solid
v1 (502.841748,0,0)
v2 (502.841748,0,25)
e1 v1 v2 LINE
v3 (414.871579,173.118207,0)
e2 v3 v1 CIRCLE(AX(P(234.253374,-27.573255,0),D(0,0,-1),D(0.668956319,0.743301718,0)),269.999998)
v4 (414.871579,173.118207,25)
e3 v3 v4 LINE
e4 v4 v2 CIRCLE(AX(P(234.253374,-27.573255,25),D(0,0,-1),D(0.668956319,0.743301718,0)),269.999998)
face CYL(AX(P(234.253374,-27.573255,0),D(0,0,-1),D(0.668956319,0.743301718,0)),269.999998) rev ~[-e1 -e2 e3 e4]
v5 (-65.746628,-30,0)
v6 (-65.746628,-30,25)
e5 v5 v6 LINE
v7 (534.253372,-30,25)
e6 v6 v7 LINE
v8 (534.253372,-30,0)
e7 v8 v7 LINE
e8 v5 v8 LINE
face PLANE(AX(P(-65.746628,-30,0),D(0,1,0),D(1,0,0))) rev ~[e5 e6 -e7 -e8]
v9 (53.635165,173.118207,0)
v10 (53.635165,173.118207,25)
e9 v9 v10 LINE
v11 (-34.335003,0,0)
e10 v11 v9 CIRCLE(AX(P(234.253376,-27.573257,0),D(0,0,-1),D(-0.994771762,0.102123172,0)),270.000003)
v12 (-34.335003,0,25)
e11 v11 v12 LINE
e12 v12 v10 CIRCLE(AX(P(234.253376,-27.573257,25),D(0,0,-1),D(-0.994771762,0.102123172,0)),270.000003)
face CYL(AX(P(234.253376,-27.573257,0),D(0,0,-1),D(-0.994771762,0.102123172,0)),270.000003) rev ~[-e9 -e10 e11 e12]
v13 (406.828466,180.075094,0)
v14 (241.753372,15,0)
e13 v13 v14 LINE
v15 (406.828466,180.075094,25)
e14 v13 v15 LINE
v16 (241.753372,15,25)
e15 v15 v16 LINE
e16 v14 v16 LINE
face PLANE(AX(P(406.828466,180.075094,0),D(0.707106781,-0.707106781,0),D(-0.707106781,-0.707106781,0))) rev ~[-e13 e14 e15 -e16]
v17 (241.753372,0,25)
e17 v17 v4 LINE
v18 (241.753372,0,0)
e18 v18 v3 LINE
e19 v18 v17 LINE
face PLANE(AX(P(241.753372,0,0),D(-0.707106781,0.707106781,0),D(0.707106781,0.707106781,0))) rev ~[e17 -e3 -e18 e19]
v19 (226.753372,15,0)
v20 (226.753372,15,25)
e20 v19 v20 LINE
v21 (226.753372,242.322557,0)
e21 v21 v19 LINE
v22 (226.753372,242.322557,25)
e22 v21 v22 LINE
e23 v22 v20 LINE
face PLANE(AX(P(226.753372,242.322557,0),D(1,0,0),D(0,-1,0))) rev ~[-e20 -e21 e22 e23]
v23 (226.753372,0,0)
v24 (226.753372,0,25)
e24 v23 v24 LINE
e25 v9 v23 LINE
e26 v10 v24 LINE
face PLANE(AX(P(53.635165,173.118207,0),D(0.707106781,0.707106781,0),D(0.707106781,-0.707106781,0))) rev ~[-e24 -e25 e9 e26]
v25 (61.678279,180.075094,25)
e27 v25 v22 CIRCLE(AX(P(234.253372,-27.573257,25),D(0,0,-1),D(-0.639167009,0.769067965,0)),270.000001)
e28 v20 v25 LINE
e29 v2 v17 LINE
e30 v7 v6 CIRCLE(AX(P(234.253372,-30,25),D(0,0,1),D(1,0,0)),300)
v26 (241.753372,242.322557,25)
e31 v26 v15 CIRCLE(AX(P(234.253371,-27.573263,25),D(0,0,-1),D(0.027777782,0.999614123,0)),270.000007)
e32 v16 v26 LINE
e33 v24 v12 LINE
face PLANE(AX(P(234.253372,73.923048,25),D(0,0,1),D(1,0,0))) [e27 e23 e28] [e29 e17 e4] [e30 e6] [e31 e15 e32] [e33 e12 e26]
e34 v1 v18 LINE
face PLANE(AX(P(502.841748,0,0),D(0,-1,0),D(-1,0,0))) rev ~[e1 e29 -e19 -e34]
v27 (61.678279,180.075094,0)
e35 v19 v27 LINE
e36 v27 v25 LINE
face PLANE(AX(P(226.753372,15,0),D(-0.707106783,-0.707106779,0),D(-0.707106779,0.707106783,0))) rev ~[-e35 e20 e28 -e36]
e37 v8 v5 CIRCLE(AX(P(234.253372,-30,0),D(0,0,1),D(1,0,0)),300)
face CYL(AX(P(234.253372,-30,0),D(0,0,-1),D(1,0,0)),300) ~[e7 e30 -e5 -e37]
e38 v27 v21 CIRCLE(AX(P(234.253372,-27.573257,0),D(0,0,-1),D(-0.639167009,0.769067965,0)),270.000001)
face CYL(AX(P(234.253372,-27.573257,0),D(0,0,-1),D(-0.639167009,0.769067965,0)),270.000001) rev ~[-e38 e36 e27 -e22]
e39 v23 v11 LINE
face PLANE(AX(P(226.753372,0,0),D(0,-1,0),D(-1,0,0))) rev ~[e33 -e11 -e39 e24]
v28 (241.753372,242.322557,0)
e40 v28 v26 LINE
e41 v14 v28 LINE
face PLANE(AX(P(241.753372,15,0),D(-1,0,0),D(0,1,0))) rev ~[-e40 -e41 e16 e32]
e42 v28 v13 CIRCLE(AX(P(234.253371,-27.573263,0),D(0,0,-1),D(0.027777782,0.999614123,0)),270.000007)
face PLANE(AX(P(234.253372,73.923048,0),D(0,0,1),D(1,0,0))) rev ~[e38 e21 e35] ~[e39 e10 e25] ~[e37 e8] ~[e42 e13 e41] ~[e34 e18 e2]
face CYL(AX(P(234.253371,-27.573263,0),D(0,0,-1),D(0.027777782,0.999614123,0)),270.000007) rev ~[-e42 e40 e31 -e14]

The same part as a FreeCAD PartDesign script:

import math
import FreeCAD as App
import Part
import Sketcher
Q = App.Units.Quantity

doc = App.newDocument("Part")
body = doc.addObject("PartDesign::Body", "Body")

# Sketch on XY plane
sketch1 = doc.addObject("Sketcher::SketchObject", "Sketch")
body.addObject(sketch1)
sketch1.AttachmentSupport = (doc.XY_Plane, [""])
sketch1.MapMode = "FlatFace"
sketch1.addGeometry([
    Part.ArcOfCircle(Part.Circle(App.Vector(234, -30, 0), App.Vector(0, 0, 1), 300), math.radians(0), math.radians(180)),  # 0
    Part.LineSegment(App.Vector(-66, -30, 0), App.Vector(534, -30, 0)),  # 1
    Part.LineSegment(App.Vector(54, 173, 0), App.Vector(227, 0, 0)),  # 2
    Part.LineSegment(App.Vector(227, 0, 0), App.Vector(-34, 0, 0)),  # 3
    Part.ArcOfCircle(Part.Circle(App.Vector(234, -28, 0), App.Vector(0, 0, 1), 270), math.radians(132), math.radians(174)),  # 4
    Part.LineSegment(App.Vector(242, 0, 0), App.Vector(415, 173, 0)),  # 5
    Part.ArcOfCircle(Part.Circle(App.Vector(234, -28, 0), App.Vector(0, 0, 1), 270), math.radians(6), math.radians(48)),  # 6
    Part.LineSegment(App.Vector(503, 0, 0), App.Vector(242, 0, 0)),  # 7
    Part.ArcOfCircle(Part.Circle(App.Vector(234, -28, 0), App.Vector(0, 0, 1), 270), math.radians(92), math.radians(130)),  # 8
    Part.LineSegment(App.Vector(227, 242, 0), App.Vector(227, 15, 0)),  # 9
    Part.LineSegment(App.Vector(227, 15, 0), App.Vector(62, 180, 0)),  # 10
    Part.ArcOfCircle(Part.Circle(App.Vector(234, -28, 0), App.Vector(0, 0, 1), 270), math.radians(50), math.radians(88)),  # 11
    Part.LineSegment(App.Vector(407, 180, 0), App.Vector(242, 15, 0)),  # 12
    Part.LineSegment(App.Vector(242, 15, 0), App.Vector(242, 242, 0)),  # 13
], False)
sketch1.addConstraint([
    Sketcher.Constraint("Coincident", 0, 1, 1, 2),
    Sketcher.Constraint("Coincident", 1, 1, 0, 2),
    Sketcher.Constraint("Coincident", 2, 2, 3, 1),
    Sketcher.Constraint("Coincident", 3, 2, 4, 2),
    Sketcher.Constraint("Coincident", 4, 1, 2, 1),
    Sketcher.Constraint("Coincident", 5, 2, 6, 2),
    Sketcher.Constraint("Coincident", 6, 1, 7, 1),
    Sketcher.Constraint("Coincident", 7, 2, 5, 1),
    Sketcher.Constraint("Coincident", 8, 1, 9, 1),
    Sketcher.Constraint("Coincident", 9, 2, 10, 1),
    Sketcher.Constraint("Coincident", 10, 2, 8, 2),
    Sketcher.Constraint("Coincident", 11, 1, 12, 1),
    Sketcher.Constraint("Coincident", 12, 2, 13, 1),
    Sketcher.Constraint("Coincident", 13, 2, 11, 2),
    Sketcher.Constraint("Horizontal", 1),
    Sketcher.Constraint("Horizontal", 3),
    Sketcher.Constraint("Horizontal", 7),
    Sketcher.Constraint("Vertical", 9),
    Sketcher.Constraint("Vertical", 13),
    Sketcher.Constraint("Coincident", 6, 3, 4, 3),
    Sketcher.Constraint("Coincident", 8, 3, 4, 3),
    Sketcher.Constraint("Coincident", 11, 3, 4, 3),
    Sketcher.Constraint("PointOnObject", 2, 2, -1),
    Sketcher.Constraint("PointOnObject", 6, 1, -1),
    Sketcher.Constraint("Perpendicular", 2, 5),
    Sketcher.Constraint("Perpendicular", 5, 10),
    Sketcher.Constraint("Perpendicular", 10, 12),
    Sketcher.Constraint("Horizontal", 4, 1, 5, 2),
    Sketcher.Constraint("Horizontal", 10, 2, 11, 1),
    Sketcher.Constraint("Horizontal", 9, 2, 12, 2),
    Sketcher.Constraint("Horizontal", 8, 1, 13, 2),
    Sketcher.Constraint("Vertical", 0, 3, 8, 3),
    Sketcher.Constraint("Vertical", 2, 2, 8, 1),
    Sketcher.Constraint("Vertical", 7, 2, 12, 2),
    Sketcher.Constraint("Equal", 3, 7),
    Sketcher.Constraint("Radius", 0, Q("300 mm")),
    Sketcher.Constraint("Radius", 6, Q("269.999998 mm")),
    Sketcher.Constraint("Radius", 8, Q("270.000001 mm")),
    Sketcher.Constraint("DistanceY", 0, 3, -1, 1, Q("30 mm")),
    Sketcher.Constraint("DistanceY", 0, 1, -1, 1, Q("30 mm")),
    Sketcher.Constraint("DistanceY", -1, 1, 9, 2, Q("15 mm")),
    Sketcher.Constraint("DistanceX", 2, 2, 7, 2, Q("15 mm")),
    Sketcher.Constraint("DistanceX", 3, 2, 3, 1, Q("261.088375 mm")),
    Sketcher.Constraint("DistanceX", -1, 1, 11, 3, Q("234.253371 mm")),
])
pad1 = doc.addObject("PartDesign::Pad", "Pad")
body.addObject(pad1)
pad1.Profile = sketch1
pad1.Length = 25

doc.recompute()
